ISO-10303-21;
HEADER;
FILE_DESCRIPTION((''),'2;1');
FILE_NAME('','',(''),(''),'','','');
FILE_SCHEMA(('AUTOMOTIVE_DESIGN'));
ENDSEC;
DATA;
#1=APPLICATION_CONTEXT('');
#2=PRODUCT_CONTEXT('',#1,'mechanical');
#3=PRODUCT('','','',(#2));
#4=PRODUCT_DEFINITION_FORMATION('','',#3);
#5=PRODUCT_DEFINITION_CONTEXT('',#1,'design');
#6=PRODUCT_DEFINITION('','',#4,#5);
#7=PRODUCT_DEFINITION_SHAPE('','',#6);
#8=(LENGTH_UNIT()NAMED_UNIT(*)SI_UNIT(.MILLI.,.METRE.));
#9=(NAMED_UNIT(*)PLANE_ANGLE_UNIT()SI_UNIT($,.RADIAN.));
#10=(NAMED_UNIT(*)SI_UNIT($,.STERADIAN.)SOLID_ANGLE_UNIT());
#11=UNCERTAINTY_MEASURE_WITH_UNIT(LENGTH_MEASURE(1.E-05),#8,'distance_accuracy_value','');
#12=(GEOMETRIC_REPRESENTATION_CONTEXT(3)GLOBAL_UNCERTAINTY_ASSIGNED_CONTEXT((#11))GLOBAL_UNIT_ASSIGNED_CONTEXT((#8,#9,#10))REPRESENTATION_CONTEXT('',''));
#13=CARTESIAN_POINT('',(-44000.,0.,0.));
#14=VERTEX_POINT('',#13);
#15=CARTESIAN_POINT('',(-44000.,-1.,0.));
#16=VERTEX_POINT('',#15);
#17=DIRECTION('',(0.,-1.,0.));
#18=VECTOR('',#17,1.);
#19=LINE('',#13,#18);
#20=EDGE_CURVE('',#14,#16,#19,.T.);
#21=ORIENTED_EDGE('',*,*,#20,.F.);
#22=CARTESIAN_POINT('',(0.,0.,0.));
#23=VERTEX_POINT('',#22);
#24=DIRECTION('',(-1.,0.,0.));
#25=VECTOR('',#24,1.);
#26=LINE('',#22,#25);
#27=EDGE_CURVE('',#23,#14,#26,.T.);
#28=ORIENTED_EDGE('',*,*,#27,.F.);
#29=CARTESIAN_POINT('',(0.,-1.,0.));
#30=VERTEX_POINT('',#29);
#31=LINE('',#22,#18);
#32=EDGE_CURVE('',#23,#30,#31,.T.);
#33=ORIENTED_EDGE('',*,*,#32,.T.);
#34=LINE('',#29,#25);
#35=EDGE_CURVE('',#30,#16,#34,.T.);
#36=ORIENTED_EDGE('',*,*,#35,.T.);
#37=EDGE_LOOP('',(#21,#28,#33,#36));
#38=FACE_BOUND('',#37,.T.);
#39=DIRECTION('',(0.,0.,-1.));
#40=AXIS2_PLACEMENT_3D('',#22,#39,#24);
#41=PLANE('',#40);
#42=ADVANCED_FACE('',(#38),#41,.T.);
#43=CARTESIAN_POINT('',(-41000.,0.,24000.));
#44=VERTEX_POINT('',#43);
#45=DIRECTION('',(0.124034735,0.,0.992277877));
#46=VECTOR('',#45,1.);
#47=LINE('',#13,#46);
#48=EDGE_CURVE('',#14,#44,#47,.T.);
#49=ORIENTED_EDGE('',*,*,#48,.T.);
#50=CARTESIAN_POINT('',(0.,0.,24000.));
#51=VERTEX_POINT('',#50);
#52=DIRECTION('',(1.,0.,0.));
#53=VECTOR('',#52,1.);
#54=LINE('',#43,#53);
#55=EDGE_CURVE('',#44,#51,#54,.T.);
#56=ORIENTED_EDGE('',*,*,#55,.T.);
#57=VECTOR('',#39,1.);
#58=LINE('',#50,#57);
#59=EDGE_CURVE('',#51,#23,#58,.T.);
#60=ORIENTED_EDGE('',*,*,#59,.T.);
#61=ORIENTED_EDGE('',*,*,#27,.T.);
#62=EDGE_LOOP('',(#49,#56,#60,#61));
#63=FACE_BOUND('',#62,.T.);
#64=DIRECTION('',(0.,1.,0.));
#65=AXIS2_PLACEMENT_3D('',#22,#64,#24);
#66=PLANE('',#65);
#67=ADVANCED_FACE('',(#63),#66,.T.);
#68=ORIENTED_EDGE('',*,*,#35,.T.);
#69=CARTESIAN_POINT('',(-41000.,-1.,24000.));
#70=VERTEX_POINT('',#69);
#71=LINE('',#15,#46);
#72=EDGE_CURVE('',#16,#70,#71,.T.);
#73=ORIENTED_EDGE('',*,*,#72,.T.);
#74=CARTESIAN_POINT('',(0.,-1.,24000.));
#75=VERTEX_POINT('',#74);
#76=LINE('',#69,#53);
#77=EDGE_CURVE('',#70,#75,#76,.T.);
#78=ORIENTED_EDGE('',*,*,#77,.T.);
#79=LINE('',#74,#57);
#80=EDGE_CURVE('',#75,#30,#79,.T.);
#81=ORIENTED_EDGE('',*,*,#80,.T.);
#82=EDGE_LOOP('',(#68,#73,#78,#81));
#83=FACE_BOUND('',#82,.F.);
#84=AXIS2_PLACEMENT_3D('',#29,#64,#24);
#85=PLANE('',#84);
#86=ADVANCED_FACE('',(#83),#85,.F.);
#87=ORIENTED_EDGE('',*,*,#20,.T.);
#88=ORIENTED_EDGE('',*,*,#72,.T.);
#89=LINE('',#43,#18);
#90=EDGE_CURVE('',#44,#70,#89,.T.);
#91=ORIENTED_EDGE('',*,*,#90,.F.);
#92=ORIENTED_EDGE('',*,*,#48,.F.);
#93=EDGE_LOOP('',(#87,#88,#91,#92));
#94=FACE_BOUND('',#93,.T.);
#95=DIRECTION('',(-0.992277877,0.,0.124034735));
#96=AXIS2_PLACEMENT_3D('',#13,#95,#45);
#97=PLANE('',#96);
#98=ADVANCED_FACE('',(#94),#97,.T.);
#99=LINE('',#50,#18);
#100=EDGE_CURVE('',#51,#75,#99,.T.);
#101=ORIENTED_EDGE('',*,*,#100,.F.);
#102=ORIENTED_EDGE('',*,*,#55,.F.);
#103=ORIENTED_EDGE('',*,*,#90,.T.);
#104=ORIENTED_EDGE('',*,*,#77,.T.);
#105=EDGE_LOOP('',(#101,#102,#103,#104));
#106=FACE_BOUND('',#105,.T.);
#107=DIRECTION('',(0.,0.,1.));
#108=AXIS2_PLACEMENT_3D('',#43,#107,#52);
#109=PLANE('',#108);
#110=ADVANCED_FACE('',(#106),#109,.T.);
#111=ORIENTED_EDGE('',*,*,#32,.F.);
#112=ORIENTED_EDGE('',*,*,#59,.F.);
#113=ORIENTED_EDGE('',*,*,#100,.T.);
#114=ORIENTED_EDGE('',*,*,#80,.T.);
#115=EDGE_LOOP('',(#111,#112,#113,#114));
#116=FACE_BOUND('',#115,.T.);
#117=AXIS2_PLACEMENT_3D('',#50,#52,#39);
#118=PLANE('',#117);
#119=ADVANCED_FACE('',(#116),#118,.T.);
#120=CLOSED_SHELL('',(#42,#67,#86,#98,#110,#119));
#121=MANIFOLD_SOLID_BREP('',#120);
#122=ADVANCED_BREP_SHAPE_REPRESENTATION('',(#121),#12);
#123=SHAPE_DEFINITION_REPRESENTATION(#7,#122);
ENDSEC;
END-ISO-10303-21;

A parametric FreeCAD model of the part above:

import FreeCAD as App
import Part
import Sketcher
from FreeCAD import Vector


def add_polygon(sketch, points):
    """Adds a closed chain of lines whose ends are joined by coincident constraints."""
    first, n = sketch.GeometryCount, len(points)
    for a, b in zip(points, points[1:] + points[:1]):
        sketch.addGeometry(Part.LineSegment(App.Vector(*a, 0), App.Vector(*b, 0)), False)
    for i in range(n):
        sketch.addConstraint(Sketcher.Constraint("Coincident", first + i, 2, first + (i + 1) % n, 1))

doc = App.newDocument("Part")
body = doc.addObject("PartDesign::Body", "Body")

sketch1 = doc.addObject("Sketcher::SketchObject", "Sketch")
body.addObject(sketch1)
sketch1.AttachmentSupport = (doc.XZ_Plane, [""])
sketch1.MapMode = "FlatFace"
add_polygon(sketch1, [(-44000, 0), (-41000, 24000), (0, 24000), (0, 0)])
sketch1.addConstraint(Sketcher.Constraint("Horizontal", 1))
sketch1.addConstraint(Sketcher.Constraint("Vertical", 2))
sketch1.addConstraint(Sketcher.Constraint("Horizontal", 3))
sketch1.addConstraint(Sketcher.Constraint("Coincident", 2, 2, -1, 1))
sketch1.addConstraint(Sketcher.Constraint("DistanceX", 1, 1, 1, 2, 41000.0))
sketch1.addConstraint(Sketcher.Constraint("DistanceX", 3, 2, 3, 1, 44000.0))
sketch1.addConstraint(Sketcher.Constraint("DistanceY", 2, 2, 2, 1, 24000.0))
pad1 = doc.addObject("PartDesign::Pad", "Pad")
body.addObject(pad1)
pad1.Profile = sketch1
pad1.Length = 1

doc.recompute()
